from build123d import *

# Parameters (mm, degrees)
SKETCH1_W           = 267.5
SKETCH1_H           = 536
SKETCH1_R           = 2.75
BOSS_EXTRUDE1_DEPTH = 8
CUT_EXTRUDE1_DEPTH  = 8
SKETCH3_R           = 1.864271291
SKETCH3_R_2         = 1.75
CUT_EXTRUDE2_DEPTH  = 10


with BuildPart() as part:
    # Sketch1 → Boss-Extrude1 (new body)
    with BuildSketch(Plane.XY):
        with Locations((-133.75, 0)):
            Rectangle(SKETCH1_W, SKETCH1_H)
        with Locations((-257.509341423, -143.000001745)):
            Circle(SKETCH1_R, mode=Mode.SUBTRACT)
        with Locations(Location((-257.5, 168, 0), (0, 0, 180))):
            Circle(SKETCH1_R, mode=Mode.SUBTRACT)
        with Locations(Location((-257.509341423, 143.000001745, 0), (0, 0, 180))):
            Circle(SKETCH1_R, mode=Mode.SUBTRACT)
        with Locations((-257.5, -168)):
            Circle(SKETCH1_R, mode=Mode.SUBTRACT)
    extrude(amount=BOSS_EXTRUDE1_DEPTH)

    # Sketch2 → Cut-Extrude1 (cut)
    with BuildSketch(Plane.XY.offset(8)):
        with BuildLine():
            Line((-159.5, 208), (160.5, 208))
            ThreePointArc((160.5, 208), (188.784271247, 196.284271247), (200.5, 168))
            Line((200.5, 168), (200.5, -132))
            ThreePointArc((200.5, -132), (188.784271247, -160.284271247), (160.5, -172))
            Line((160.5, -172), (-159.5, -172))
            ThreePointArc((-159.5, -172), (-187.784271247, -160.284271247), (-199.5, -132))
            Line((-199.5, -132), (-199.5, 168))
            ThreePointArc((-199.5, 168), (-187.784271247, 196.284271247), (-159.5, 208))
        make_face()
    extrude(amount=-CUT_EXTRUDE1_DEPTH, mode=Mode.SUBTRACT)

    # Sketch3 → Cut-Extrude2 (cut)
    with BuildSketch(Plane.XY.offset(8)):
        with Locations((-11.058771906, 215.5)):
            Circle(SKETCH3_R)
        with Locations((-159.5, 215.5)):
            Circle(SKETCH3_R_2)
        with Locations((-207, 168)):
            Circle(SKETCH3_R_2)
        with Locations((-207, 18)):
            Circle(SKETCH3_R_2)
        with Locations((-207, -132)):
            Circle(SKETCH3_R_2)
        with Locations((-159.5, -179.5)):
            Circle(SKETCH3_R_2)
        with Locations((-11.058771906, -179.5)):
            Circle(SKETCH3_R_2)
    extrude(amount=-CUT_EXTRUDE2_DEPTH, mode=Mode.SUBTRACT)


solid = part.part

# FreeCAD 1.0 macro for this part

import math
import FreeCAD as App
import Part
import Sketcher
Q = App.Units.Quantity

doc = App.newDocument("Part")
body = doc.addObject("PartDesign::Body", "Body")

sketch1 = body.newObject("Sketcher::SketchObject", "Sketch")
sketch1.AttachmentSupport = (doc.getObject("XY_Plane"), [""])
sketch1.MapMode = "FlatFace"
sketch1.addGeometry(Part.LineSegment(App.Vector(-267.5, 268, 0), App.Vector(-267.5, -268, 0)), False)
sketch1.addGeometry(Part.LineSegment(App.Vector(-267.5, -268, 0), App.Vector(0, -268, 0)), False)
sketch1.addGeometry(Part.LineSegment(App.Vector(0, -268, 0), App.Vector(0, 268, 0)), False)
sketch1.addGeometry(Part.LineSegment(App.Vector(0, 268, 0), App.Vector(-267.5, 268, 0)), False)
sketch1.addGeometry(Part.Circle(App.Vector(-257.509341, -143.000002, 0), App.Vector(0, 0, 1), 2.75), False)
sketch1.addGeometry(Part.Circle(App.Vector(-257.5, -168, 0), App.Vector(0, 0, 1), 2.75), False)
sketch1.addGeometry(Part.Circle(App.Vector(-257.509341, 143.000002, 0), App.Vector(0, 0, 1), 2.75), False)
sketch1.addGeometry(Part.Circle(App.Vector(-257.5, 168, 0), App.Vector(0, 0, 1), 2.75), False)
sketch1.addConstraint(Sketcher.Constraint("Coincident", 0, 2, 1, 1))
sketch1.addConstraint(Sketcher.Constraint("Coincident", 1, 2, 2, 1))
sketch1.addConstraint(Sketcher.Constraint("Coincident", 2, 2, 3, 1))
sketch1.addConstraint(Sketcher.Constraint("Coincident", 3, 2, 0, 1))
sketch1.addConstraint(Sketcher.Constraint("Vertical", 0))
sketch1.addConstraint(Sketcher.Constraint("Horizontal", 1))
sketch1.addConstraint(Sketcher.Constraint("Vertical", 2))
sketch1.addConstraint(Sketcher.Constraint("Horizontal", 3))
sketch1.addConstraint(Sketcher.Constraint("Equal", 4, 5))
sketch1.addConstraint(Sketcher.Constraint("Equal", 5, 6))
sketch1.addConstraint(Sketcher.Constraint("Equal", 6, 7))
sketch1.addConstraint(Sketcher.Constraint("Symmetric", 1, 2, 2, 2, -1, 1))
sketch1.addConstraint(Sketcher.Constraint("Symmetric", 4, 3, 6, 3, -1))
sketch1.addConstraint(Sketcher.Constraint("Symmetric", 5, 3, 7, 3, -1))
sketch1.addConstraint(Sketcher.Constraint("Diameter", 4, Q("5.5 mm")))
sketch1.addConstraint(Sketcher.Constraint("DistanceY", 0, 2, 0, 1, Q("536 mm")))
sketch1.addConstraint(Sketcher.Constraint("DistanceX", 1, 1, 1, 2, Q("267.5 mm")))
sketch1.addConstraint(Sketcher.Constraint("DistanceY", 4, 3, -1, 1, Q("143.000002 mm")))
sketch1.addConstraint(Sketcher.Constraint("DistanceY", 5, 3, -1, 1, Q("168 mm")))
sketch1.addConstraint(Sketcher.Constraint("DistanceX", 0, 2, 5, 3, Q("10 mm")))
sketch1.addConstraint(Sketcher.Constraint("DistanceX", 4, 3, -1, 1, Q("257.509341 mm")))
pad1 = body.newObject("PartDesign::Pad", "Pad")
pad1.Profile = sketch1
pad1.Length = 8

sketch2 = body.newObject("Sketcher::SketchObject", "Sketch001")
sketch2.AttachmentSupport = (doc.getObject("XY_Plane"), [""])
sketch2.MapMode = "FlatFace"
sketch2.AttachmentOffset = App.Placement(App.Vector(0, 0, 8), App.Rotation())
sketch2.addGeometry(Part.LineSegment(App.Vector(160.5, 208, 0), App.Vector(-159.5, 208, 0)), False)
sketch2.addGeometry(Part.ArcOfCircle(Part.Circle(App.Vector(-159.5, 168, 0), App.Vector(0, 0, 1), 40), math.radians(90), math.radians(180)), False)
sketch2.addGeometry(Part.LineSegment(App.Vector(-199.5, 168, 0), App.Vector(-199.5, -132, 0)), False)
sketch2.addGeometry(Part.ArcOfCircle(Part.Circle(App.Vector(-159.5, -132, 0), App.Vector(0, 0, 1), 40), math.radians(-180), math.radians(-90)), False)
sketch2.addGeometry(Part.LineSegment(App.Vector(-159.5, -172, 0), App.Vector(160.5, -172, 0)), False)
sketch2.addGeometry(Part.ArcOfCircle(Part.Circle(App.Vector(160.5, -132, 0), App.Vector(0, 0, 1), 40), math.radians(-90), math.radians(0)), False)
sketch2.addGeometry(Part.LineSegment(App.Vector(200.5, -132, 0), App.Vector(200.5, 168, 0)), False)
sketch2.addGeometry(Part.ArcOfCircle(Part.Circle(App.Vector(160.5, 168, 0), App.Vector(0, 0, 1), 40), math.radians(0), math.radians(90)), False)
sketch2.addConstraint(Sketcher.Constraint("Tangent", 0, 2, 1, 1))
sketch2.addConstraint(Sketcher.Constraint("Tangent", 1, 2, 2, 1))
sketch2.addConstraint(Sketcher.Constraint("Tangent", 2, 2, 3, 1))
sketch2.addConstraint(Sketcher.Constraint("Tangent", 3, 2, 4, 1))
sketch2.addConstraint(Sketcher.Constraint("Tangent", 4, 2, 5, 1))
sketch2.addConstraint(Sketcher.Constraint("Tangent", 5, 2, 6, 1))
sketch2.addConstraint(Sketcher.Constraint("Tangent", 6, 2, 7, 1))
sketch2.addConstraint(Sketcher.Constraint("Tangent", 7, 2, 0, 1))
sketch2.addConstraint(Sketcher.Constraint("Horizontal", 0))
sketch2.addConstraint(Sketcher.Constraint("Vertical", 2))
sketch2.addConstraint(Sketcher.Constraint("Horizontal", 4))
sketch2.addConstraint(Sketcher.Constraint("Vertical", 6))
sketch2.addConstraint(Sketcher.Constraint("Equal", 1, 3))
sketch2.addConstraint(Sketcher.Constraint("Equal", 3, 5))
sketch2.addConstraint(Sketcher.Constraint("Equal", 5, 7))
sketch2.addConstraint(Sketcher.Constraint("Radius", 1, Q("40 mm")))
sketch2.addConstraint(Sketcher.Constraint("DistanceX", 0, 2, 0, 1, Q("320 mm")))
sketch2.addConstraint(Sketcher.Constraint("DistanceY", 2, 2, 2, 1, Q("300 mm")))
sketch2.addConstraint(Sketcher.Constraint("DistanceY", -1, 1, 1, 3, Q("168 mm")))
sketch2.addConstraint(Sketcher.Constraint("DistanceX", 1, 3, -1, 1, Q("159.5 mm")))
pocket1 = body.newObject("PartDesign::Pocket", "Pocket")
pocket1.Profile = sketch2
pocket1.Length = 8

sketch3 = body.newObject("Sketcher::SketchObject", "Sketch002")
sketch3.AttachmentSupport = (doc.getObject("XY_Plane"), [""])
sketch3.MapMode = "FlatFace"
sketch3.AttachmentOffset = App.Placement(App.Vector(0, 0, 8), App.Rotation())
sketch3.addGeometry(Part.Circle(App.Vector(-11.058772, 215.5, 0), App.Vector(0, 0, 1), 1.864271), False)
sketch3.addGeometry(Part.Circle(App.Vector(-159.5, 215.5, 0), App.Vector(0, 0, 1), 1.75), False)
sketch3.addGeometry(Part.Circle(App.Vector(-207, 168, 0), App.Vector(0, 0, 1), 1.75), False)
sketch3.addGeometry(Part.Circle(App.Vector(-207, 18, 0), App.Vector(0, 0, 1), 1.75), False)
sketch3.addGeometry(Part.Circle(App.Vector(-207, -132, 0), App.Vector(0, 0, 1), 1.75), False)
sketch3.addGeometry(Part.Circle(App.Vector(-159.5, -179.5, 0), App.Vector(0, 0, 1), 1.75), False)
sketch3.addGeometry(Part.Circle(App.Vector(-11.058772, -179.5, 0), App.Vector(0, 0, 1), 1.75), False)
sketch3.addConstraint(Sketcher.Constraint("Equal", 1, 2))
sketch3.addConstraint(Sketcher.Constraint("Equal", 2, 3))
sketch3.addConstraint(Sketcher.Constraint("Equal", 3, 4))
sketch3.addConstraint(Sketcher.Constraint("Equal", 4, 5))
sketch3.addConstraint(Sketcher.Constraint("Equal", 5, 6))
sketch3.addConstraint(Sketcher.Constraint("Horizontal", 0, 3, 1, 3))
sketch3.addConstraint(Sketcher.Constraint("Horizontal", 5, 3, 6, 3))
sketch3.addConstraint(Sketcher.Constraint("Vertical", 2, 3, 3, 3))
sketch3.addConstraint(Sketcher.Constraint("Vertical", 3, 3, 4, 3))
sketch3.addConstraint(Sketcher.Constraint("Vertical", 1, 3, 5, 3))
sketch3.addConstraint(Sketcher.Constraint("Vertical", 0, 3, 6, 3))
sketch3.addConstraint(Sketcher.Constraint("Diameter", 1, Q("3.5 mm")))
sketch3.addConstraint(Sketcher.Constraint("DistanceX", 2, 3, -1, 1, Q("207 mm")))
sketch3.addConstraint(Sketcher.Constraint("DistanceY", -1, 1, 2, 3, Q("168 mm")))
sketch3.addConstraint(Sketcher.Constraint("DistanceY", -1, 1, 3, 3, Q("18 mm")))
sketch3.addConstraint(Sketcher.Constraint("DistanceY", 4, 3, -1, 1, Q("132 mm")))
sketch3.addConstraint(Sketcher.Constraint("DistanceY", 5, 3, 1, 3, Q("395 mm")))
sketch3.addConstraint(Sketcher.Constraint("DistanceY", -1, 1, 0, 3, Q("215.5 mm")))
sketch3.addConstraint(Sketcher.Constraint("DistanceX", 1, 3, -1, 1, Q("159.5 mm")))
sketch3.addConstraint(Sketcher.Constraint("Diameter", 0, Q("3.728543 mm")))
sketch3.addConstraint(Sketcher.Constraint("DistanceX", 0, 3, -1, 1, Q("11.058772 mm")))
pocket2 = body.newObject("PartDesign::Pocket", "Pocket001")
pocket2.Profile = sketch3
pocket2.Length = 10

doc.recompute()
